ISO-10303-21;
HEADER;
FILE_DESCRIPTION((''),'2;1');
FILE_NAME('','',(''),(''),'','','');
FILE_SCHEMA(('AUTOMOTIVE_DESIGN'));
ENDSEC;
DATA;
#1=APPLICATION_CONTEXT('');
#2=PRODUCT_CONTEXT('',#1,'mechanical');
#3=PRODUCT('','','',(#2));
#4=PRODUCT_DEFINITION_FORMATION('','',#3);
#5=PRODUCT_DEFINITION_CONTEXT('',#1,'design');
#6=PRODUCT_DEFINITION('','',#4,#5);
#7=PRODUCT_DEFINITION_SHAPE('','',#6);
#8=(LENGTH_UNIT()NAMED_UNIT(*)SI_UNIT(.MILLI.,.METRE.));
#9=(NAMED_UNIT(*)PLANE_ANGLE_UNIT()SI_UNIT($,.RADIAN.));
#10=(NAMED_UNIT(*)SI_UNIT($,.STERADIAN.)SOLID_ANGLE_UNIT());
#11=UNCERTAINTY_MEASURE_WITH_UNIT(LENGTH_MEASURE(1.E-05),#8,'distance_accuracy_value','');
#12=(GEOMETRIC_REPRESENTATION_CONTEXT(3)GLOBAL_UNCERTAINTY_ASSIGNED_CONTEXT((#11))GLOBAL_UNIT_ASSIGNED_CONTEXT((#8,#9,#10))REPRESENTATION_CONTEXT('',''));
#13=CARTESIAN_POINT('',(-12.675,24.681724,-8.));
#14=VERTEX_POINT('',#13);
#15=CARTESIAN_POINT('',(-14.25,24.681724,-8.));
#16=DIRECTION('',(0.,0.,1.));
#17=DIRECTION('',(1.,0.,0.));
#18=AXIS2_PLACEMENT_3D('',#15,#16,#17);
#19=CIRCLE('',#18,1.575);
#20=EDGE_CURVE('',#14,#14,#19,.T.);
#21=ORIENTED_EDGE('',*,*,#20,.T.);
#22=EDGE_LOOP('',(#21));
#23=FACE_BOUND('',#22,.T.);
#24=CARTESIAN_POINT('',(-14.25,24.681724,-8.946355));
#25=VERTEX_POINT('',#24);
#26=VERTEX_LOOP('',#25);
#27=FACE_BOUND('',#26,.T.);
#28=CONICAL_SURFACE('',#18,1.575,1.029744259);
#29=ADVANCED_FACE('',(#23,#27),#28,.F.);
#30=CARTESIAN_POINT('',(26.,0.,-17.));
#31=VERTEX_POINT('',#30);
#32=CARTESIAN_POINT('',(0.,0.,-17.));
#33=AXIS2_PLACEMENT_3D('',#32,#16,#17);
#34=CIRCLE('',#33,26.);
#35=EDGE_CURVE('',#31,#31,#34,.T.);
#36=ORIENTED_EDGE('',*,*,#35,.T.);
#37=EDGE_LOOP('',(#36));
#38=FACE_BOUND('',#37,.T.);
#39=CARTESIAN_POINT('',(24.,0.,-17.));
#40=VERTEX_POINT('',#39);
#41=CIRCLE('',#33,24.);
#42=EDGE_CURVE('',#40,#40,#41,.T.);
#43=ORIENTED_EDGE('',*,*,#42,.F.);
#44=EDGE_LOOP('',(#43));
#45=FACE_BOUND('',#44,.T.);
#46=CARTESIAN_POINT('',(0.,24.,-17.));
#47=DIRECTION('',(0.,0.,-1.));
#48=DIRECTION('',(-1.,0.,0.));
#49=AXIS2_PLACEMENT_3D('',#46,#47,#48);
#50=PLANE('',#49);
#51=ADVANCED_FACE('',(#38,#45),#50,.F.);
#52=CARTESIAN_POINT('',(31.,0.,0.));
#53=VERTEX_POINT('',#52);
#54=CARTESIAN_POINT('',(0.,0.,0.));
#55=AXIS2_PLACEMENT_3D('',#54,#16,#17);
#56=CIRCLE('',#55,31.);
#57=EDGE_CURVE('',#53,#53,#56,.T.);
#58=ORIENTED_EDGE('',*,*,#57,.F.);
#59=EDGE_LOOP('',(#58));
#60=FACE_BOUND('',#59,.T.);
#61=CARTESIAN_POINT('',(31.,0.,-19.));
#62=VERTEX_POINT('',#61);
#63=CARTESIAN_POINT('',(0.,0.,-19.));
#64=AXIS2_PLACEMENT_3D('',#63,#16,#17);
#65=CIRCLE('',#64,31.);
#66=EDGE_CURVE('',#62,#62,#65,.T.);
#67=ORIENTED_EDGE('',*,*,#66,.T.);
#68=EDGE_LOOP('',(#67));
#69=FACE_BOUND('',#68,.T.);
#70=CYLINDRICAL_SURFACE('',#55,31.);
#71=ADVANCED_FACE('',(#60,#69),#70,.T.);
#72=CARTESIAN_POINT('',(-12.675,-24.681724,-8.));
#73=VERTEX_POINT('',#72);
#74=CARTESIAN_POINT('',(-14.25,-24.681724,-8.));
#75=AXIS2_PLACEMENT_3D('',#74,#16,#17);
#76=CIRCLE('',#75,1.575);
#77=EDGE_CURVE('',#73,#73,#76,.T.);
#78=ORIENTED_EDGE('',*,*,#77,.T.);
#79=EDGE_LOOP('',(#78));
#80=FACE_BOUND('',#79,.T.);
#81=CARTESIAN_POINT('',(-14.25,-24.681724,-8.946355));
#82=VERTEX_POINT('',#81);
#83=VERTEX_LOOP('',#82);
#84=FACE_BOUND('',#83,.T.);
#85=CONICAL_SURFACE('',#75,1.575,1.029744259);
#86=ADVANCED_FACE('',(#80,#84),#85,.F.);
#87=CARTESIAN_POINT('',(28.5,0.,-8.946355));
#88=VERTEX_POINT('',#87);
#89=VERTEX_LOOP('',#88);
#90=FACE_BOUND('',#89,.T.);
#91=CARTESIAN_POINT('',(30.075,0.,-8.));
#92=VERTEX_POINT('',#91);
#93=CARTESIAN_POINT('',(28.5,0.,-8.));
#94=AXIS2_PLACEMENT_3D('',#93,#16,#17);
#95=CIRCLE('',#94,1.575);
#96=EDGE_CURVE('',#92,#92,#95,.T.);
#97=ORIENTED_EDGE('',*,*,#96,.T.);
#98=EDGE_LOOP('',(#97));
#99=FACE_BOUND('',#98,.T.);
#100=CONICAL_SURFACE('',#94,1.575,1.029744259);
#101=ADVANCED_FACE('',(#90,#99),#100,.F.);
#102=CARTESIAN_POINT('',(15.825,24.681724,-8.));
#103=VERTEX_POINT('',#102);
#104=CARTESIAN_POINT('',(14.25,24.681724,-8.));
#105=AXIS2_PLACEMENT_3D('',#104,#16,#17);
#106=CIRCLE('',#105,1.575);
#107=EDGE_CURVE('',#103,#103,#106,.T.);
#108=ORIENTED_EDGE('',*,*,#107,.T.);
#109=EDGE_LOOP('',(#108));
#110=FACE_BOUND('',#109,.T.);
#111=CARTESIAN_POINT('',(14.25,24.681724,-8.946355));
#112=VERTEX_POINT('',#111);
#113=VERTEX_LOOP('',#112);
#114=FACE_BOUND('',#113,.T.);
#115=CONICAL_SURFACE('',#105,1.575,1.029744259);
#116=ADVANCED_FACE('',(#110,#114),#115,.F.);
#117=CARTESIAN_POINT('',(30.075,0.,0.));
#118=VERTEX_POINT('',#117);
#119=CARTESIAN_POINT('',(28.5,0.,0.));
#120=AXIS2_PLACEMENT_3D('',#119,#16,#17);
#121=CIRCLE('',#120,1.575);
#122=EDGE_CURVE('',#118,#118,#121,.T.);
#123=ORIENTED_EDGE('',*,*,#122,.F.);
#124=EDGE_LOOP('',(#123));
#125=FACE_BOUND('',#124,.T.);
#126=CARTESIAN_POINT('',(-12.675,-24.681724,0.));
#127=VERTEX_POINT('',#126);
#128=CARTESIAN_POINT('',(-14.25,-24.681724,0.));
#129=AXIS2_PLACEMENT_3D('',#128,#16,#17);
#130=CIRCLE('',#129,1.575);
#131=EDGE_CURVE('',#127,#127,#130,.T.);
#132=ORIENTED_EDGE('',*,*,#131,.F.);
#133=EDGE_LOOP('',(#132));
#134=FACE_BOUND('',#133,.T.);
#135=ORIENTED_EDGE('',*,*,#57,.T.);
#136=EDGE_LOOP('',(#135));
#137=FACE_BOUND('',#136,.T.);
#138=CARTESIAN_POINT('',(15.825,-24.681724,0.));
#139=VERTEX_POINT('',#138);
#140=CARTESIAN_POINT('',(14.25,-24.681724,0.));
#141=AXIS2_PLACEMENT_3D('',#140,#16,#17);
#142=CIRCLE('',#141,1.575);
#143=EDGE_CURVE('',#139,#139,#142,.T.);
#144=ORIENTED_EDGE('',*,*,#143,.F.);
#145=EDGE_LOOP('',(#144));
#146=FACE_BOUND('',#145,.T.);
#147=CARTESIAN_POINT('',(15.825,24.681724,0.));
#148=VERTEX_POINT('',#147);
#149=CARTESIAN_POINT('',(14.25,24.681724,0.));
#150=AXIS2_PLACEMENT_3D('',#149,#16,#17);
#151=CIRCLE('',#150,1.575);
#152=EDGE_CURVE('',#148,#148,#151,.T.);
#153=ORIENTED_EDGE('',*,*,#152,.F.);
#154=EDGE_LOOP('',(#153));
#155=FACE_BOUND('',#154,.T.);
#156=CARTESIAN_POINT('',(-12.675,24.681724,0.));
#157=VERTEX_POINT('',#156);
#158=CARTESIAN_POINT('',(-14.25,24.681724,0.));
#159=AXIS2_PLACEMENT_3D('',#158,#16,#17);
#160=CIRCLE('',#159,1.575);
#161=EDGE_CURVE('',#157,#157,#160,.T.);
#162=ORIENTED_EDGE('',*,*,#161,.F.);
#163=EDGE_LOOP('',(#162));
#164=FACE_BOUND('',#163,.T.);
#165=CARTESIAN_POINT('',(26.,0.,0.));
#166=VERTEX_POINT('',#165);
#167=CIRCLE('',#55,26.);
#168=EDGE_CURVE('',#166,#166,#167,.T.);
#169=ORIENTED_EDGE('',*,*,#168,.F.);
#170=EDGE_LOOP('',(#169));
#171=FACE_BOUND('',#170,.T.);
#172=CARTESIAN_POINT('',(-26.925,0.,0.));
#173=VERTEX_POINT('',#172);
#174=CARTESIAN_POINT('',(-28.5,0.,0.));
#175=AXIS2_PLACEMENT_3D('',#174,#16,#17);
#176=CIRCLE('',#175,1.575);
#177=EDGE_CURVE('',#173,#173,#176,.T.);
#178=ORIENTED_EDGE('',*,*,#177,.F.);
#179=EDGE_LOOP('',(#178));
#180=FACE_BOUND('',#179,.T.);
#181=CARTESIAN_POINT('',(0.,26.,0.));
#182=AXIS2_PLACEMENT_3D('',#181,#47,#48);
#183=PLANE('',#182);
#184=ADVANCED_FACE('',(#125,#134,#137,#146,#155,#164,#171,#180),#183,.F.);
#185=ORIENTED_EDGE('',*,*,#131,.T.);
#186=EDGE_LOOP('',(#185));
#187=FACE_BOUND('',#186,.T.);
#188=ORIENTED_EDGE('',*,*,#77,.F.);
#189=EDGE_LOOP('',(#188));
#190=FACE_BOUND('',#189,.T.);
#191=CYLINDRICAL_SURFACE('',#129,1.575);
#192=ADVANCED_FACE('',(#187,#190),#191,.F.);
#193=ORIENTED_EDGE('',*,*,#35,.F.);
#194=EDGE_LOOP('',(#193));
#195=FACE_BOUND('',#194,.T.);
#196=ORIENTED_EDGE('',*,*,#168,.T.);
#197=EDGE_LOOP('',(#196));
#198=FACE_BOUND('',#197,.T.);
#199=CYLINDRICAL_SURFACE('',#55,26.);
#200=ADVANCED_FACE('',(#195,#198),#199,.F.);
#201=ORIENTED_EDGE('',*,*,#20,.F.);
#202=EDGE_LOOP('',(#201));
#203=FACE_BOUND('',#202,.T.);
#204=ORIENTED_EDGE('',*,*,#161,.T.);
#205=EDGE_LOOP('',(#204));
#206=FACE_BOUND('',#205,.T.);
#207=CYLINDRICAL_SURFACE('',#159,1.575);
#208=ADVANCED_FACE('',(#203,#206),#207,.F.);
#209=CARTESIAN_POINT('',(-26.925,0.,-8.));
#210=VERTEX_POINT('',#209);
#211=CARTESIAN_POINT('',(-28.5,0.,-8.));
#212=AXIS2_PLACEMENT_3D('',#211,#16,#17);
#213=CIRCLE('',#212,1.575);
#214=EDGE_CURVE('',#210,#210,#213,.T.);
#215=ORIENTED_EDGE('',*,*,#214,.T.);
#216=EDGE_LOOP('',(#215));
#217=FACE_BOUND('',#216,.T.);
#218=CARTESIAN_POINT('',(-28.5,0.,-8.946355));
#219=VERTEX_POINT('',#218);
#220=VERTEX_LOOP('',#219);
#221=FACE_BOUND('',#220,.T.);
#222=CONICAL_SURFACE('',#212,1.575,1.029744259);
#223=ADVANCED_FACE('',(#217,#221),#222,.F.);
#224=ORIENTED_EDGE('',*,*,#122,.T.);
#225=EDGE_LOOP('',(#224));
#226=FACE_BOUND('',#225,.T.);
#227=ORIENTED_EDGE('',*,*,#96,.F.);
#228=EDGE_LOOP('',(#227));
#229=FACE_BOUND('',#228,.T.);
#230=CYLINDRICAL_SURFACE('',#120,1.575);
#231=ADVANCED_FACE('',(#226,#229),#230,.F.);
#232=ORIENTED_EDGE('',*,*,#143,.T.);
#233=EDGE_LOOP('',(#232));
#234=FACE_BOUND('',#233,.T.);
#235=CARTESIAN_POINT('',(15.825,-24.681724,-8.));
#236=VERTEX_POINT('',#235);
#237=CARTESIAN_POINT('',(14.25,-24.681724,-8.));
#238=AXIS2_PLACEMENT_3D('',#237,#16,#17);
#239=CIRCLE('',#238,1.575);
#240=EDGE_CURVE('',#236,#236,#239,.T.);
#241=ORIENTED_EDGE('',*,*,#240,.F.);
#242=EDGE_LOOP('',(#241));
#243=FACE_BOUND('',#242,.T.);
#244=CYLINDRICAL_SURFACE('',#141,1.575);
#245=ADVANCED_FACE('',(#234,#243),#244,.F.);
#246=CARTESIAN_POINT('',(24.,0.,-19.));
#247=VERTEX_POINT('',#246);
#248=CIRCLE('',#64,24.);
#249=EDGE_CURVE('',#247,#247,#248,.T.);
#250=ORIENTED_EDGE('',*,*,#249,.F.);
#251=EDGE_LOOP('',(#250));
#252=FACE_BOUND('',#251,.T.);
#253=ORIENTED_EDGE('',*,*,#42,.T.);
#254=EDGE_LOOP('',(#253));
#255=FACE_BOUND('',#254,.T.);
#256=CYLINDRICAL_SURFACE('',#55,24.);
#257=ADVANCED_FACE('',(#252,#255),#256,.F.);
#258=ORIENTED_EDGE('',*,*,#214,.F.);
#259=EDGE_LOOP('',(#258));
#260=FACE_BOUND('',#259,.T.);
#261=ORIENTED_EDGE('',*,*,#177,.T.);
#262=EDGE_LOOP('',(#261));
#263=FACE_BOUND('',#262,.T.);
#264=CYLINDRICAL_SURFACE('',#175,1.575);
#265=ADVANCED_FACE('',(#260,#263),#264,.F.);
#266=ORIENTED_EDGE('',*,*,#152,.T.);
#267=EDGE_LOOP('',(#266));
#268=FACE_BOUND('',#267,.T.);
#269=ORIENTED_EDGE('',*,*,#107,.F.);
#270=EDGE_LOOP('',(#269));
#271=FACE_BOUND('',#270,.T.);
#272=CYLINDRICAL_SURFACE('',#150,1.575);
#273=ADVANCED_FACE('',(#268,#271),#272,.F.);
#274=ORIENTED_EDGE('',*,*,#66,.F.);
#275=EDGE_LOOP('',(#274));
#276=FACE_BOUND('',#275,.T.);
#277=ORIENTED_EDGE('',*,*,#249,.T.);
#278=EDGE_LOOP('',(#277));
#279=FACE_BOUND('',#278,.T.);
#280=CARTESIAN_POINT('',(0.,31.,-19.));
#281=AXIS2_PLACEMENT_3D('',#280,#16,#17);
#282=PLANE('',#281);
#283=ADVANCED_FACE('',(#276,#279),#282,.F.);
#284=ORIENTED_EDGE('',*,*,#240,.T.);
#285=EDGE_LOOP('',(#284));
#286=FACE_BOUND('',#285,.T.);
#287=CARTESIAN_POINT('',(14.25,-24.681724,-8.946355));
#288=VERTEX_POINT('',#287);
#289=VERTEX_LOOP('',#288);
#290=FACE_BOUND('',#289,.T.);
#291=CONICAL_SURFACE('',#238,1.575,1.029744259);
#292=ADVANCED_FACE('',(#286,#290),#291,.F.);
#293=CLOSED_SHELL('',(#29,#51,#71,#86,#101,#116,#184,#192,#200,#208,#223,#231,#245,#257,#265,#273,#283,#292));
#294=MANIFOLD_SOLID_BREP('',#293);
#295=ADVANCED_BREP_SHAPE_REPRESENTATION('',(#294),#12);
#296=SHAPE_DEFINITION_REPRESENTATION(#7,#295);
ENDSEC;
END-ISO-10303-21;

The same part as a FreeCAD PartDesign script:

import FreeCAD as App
import Part
import Sketcher
from FreeCAD import Vector
Q = App.Units.Quantity

doc = App.newDocument("Part")
body = doc.addObject("PartDesign::Body", "Body")

# Sketch on YZ plane
sketch1 = body.newObject("Sketcher::SketchObject", "Sketch")
sketch1.AttachmentSupport = (doc.getObject("YZ_Plane"), [""])
sketch1.MapMode = "FlatFace"
sketch1.addGeometry([
    Part.LineSegment(Vector(31, -19, 0), Vector(31, 0, 0)),  # 0
    Part.LineSegment(Vector(31, 0, 0), Vector(26, 0, 0)),  # 1
    Part.LineSegment(Vector(26, 0, 0), Vector(26, -17, 0)),  # 2
    Part.LineSegment(Vector(26, -17, 0), Vector(24, -17, 0)),  # 3
    Part.LineSegment(Vector(24, -17, 0), Vector(24, -19, 0)),  # 4
    Part.LineSegment(Vector(24, -19, 0), Vector(31, -19, 0)),  # 5
], False)
sketch1.addConstraint([
    Sketcher.Constraint("Coincident", 0, 2, 1, 1),
    Sketcher.Constraint("Coincident", 1, 2, 2, 1),
    Sketcher.Constraint("Coincident", 2, 2, 3, 1),
    Sketcher.Constraint("Coincident", 3, 2, 4, 1),
    Sketcher.Constraint("Coincident", 4, 2, 5, 1),
    Sketcher.Constraint("Coincident", 5, 2, 0, 1),
    Sketcher.Constraint("Vertical", 0),
    Sketcher.Constraint("Horizontal", 1),
    Sketcher.Constraint("Vertical", 2),
    Sketcher.Constraint("Horizontal", 3),
    Sketcher.Constraint("Vertical", 4),
    Sketcher.Constraint("Horizontal", 5),
    Sketcher.Constraint("PointOnObject", 0, 2, -1),
    Sketcher.Constraint("Equal", 3, 4),
    Sketcher.Constraint("DistanceX", 1, 2, 1, 1, 5.0),
    Sketcher.Constraint("DistanceX", 3, 2, 3, 1, 2.0),
    Sketcher.Constraint("DistanceY", 0, 1, 0, 2, 19.0),
    Sketcher.Constraint("DistanceX", -1, 1, 0, 2, 31.0),
])
revolution = body.newObject("PartDesign::Revolution", "Revolution")
revolution.Profile = sketch1
revolution.ReferenceAxis = (sketch1, ["V_Axis"])
revolution.Angle = 360

# Sketch on YZ plane
sketch2 = body.newObject("Sketcher::SketchObject", "Sketch001")
sketch2.AttachmentSupport = (doc.getObject("YZ_Plane"), [""])
sketch2.MapMode = "FlatFace"
sketch2.AttachmentOffset = App.Placement(Vector(0, 0, 28.5), App.Rotation())
sketch2.addGeometry([
    Part.LineSegment(Vector(0, -8.9, 0), Vector(0, 0, 0)),
    Part.LineSegment(Vector(0, 0, 0), Vector(-1.6, 0, 0)),
    Part.LineSegment(Vector(-1.6, 0, 0), Vector(-1.6, -8, 0)),
    Part.LineSegment(Vector(-1.6, -8, 0), Vector(0, -8.9, 0)),
], False)
sketch2.addConstraint([
    Sketcher.Constraint("Coincident", 0, 2, 1, 1),
    Sketcher.Constraint("Coincident", 1, 2, 2, 1),
    Sketcher.Constraint("Coincident", 2, 2, 3, 1),
    Sketcher.Constraint("Coincident", 3, 2, 0, 1),
    Sketcher.Constraint("Vertical", 0),
    Sketcher.Constraint("Horizontal", 1),
    Sketcher.Constraint("Vertical", 2),
    Sketcher.Constraint("Coincident", 0, 2, -1, 1),
    Sketcher.Constraint("DistanceY", 2, 2, 2, 1, 8.0),
    Sketcher.Constraint("Angle", 3, Q("-31 deg")),
    Sketcher.Constraint("DistanceX", 1, 2, 1, 1, 1.575),
])
groove = body.newObject("PartDesign::Groove", "Groove")
groove.Profile = sketch2
groove.ReferenceAxis = (sketch2, ["V_Axis"])
groove.Angle = 360
doc.recompute()

polarpattern = body.newObject("PartDesign::PolarPattern", "PolarPattern")
polarpattern.Originals = [groove]
polarpattern.Axis = (doc.getObject("Z_Axis"), [""])
polarpattern.Angle = 360
polarpattern.Occurrences = 6
body.Tip = polarpattern

doc.recompute()
